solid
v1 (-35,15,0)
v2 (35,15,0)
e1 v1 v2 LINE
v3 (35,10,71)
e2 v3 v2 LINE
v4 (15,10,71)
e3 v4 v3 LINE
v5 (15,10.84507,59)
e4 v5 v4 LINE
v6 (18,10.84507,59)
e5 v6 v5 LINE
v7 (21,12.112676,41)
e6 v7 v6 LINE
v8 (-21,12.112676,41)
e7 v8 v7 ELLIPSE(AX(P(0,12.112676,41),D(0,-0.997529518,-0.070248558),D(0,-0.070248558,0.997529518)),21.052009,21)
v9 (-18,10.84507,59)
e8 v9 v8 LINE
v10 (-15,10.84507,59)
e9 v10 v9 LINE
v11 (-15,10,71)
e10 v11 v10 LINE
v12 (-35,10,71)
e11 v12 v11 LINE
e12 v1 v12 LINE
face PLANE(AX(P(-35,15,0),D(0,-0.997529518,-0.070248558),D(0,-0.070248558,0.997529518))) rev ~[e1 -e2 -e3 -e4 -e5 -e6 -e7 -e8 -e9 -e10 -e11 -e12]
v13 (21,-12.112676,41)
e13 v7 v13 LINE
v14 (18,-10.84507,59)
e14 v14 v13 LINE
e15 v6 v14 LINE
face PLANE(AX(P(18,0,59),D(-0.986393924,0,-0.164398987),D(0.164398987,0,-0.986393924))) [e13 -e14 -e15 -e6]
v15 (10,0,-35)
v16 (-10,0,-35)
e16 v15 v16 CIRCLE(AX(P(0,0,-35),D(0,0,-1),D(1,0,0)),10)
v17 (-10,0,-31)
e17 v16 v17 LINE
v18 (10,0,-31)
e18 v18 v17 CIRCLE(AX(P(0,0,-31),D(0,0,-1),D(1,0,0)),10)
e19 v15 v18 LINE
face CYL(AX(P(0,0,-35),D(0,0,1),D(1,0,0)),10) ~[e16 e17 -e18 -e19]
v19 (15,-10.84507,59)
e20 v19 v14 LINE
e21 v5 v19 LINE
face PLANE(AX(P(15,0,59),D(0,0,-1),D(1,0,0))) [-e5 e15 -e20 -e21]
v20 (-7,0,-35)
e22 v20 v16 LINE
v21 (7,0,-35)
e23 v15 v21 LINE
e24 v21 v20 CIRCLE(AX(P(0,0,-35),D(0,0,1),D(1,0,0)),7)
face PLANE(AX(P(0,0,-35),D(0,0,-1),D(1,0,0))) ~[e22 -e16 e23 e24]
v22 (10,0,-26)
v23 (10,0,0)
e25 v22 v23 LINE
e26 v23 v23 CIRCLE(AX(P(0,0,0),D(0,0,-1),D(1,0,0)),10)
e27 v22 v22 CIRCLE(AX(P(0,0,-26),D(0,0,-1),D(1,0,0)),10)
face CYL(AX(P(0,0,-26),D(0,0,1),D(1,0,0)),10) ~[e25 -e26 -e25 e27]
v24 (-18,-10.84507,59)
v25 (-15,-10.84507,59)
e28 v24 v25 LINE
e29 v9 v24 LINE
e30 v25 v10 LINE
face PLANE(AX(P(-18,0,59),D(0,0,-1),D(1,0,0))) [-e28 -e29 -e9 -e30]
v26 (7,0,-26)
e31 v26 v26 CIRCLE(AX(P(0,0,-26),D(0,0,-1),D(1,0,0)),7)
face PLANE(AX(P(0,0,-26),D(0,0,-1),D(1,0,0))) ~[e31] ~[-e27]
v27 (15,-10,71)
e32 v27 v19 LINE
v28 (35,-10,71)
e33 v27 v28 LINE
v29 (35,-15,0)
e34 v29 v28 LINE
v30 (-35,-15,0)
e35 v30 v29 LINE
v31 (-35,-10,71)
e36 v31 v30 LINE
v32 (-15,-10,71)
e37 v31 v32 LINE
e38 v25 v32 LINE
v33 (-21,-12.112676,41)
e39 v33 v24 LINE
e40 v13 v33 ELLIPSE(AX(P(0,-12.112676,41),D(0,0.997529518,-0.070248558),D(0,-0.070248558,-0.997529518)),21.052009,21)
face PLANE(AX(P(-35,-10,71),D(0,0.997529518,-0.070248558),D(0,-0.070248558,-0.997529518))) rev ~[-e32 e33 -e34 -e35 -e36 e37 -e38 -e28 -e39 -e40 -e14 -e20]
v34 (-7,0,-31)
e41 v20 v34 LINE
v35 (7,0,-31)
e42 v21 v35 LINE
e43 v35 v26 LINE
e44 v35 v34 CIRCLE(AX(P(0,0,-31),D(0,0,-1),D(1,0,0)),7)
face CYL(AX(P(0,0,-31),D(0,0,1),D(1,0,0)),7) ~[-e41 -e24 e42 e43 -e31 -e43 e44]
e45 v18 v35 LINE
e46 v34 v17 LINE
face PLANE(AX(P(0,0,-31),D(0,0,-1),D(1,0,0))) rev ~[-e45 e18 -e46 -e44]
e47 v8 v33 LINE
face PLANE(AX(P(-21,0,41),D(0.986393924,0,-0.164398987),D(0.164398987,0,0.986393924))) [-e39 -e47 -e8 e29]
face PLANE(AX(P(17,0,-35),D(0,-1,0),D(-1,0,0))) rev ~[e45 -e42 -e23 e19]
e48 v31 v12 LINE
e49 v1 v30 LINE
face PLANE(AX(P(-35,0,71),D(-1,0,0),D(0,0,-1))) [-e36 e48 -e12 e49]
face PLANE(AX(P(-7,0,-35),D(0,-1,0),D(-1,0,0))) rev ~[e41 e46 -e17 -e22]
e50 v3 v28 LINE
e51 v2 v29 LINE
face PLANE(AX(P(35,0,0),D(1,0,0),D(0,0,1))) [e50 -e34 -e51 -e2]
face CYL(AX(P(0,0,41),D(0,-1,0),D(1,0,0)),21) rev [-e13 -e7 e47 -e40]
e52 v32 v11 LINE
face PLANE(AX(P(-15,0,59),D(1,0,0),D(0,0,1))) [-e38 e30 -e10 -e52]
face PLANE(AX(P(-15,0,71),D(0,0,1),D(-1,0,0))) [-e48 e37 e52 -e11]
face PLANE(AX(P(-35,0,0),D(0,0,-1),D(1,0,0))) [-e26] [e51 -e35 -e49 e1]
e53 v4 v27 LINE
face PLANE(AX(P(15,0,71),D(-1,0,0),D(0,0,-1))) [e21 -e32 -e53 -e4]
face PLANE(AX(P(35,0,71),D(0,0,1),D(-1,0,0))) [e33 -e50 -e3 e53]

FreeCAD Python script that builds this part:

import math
import FreeCAD as App
import Part
import Sketcher
Q = App.Units.Quantity

doc = App.newDocument("Part")
params = doc.addObject("Spreadsheet::Sheet", "Params")
for row, (alias, value) in enumerate([
    ("sketch1_radius", "21 mm"),
    ("sketch1_width", "70 mm"),
    ("sketch1_width2", "20 mm"),
    ("sketch1_width3", "3 mm"),
    ("sketch1_height", "71 mm"),
    ("pad1_length", "30 mm"),
    ("sketch2_width", "5 mm"),
    ("sketch2_height", "71 mm"),
    ("sketch3_width", "10 mm"),
    ("sketch3_width2", "3 mm"),
    ("sketch3_height", "35 mm"),
    ("sketch3_height2", "4 mm"),
    ("sketch3_height3", "5 mm"),
    ("revolution_angle", "360 deg"),
    ("sketch4_radius", "7 mm"),
    ("sketch4_width", "10 mm"),
    ("pocket2_length", "6 mm"),
], start=1):
    params.set(f"A{row}", alias)
    params.set(f"B{row}", "=" + value)
    params.setAlias(f"B{row}", alias)

body = doc.addObject("PartDesign::Body", "Body")

# Sketch on XZ plane
sketch1 = body.newObject("Sketcher::SketchObject", "Sketch")
sketch1.AttachmentSupport = (doc.getObject("XZ_Plane"), [""])
sketch1.MapMode = "FlatFace"
sketch1.addGeometry(Part.LineSegment(App.Vector(-35, 71, 0), App.Vector(-35, 0, 0)), False)
sketch1.addGeometry(Part.LineSegment(App.Vector(-35, 0, 0), App.Vector(35, 0, 0)), False)
sketch1.addGeometry(Part.LineSegment(App.Vector(35, 0, 0), App.Vector(35, 71, 0)), False)
sketch1.addGeometry(Part.LineSegment(App.Vector(35, 71, 0), App.Vector(15, 71, 0)), False)
sketch1.addGeometry(Part.LineSegment(App.Vector(15, 71, 0), App.Vector(15, 59, 0)), False)
sketch1.addGeometry(Part.LineSegment(App.Vector(15, 59, 0), App.Vector(18, 59, 0)), False)
sketch1.addGeometry(Part.LineSegment(App.Vector(18, 59, 0), App.Vector(21, 41, 0)), False)
sketch1.addGeometry(Part.ArcOfCircle(Part.Circle(App.Vector(0, 41, 0), App.Vector(0, 0, 1), 21), math.radians(180), math.radians(360)), False)
sketch1.addGeometry(Part.LineSegment(App.Vector(-21, 41, 0), App.Vector(-18, 59, 0)), False)
sketch1.addGeometry(Part.LineSegment(App.Vector(-18, 59, 0), App.Vector(-15, 59, 0)), False)
sketch1.addGeometry(Part.LineSegment(App.Vector(-15, 59, 0), App.Vector(-15, 71, 0)), False)
sketch1.addGeometry(Part.LineSegment(App.Vector(-15, 71, 0), App.Vector(-35, 71, 0)), False)
sketch1.addConstraint(Sketcher.Constraint("Coincident", 0, 2, 1, 1))
sketch1.addConstraint(Sketcher.Constraint("Coincident", 1, 2, 2, 1))
sketch1.addConstraint(Sketcher.Constraint("Coincident", 2, 2, 3, 1))
sketch1.addConstraint(Sketcher.Constraint("Coincident", 3, 2, 4, 1))
sketch1.addConstraint(Sketcher.Constraint("Coincident", 4, 2, 5, 1))
sketch1.addConstraint(Sketcher.Constraint("Coincident", 5, 2, 6, 1))
sketch1.addConstraint(Sketcher.Constraint("Coincident", 6, 2, 7, 2))
sketch1.addConstraint(Sketcher.Constraint("Coincident", 7, 1, 8, 1))
sketch1.addConstraint(Sketcher.Constraint("Coincident", 8, 2, 9, 1))
sketch1.addConstraint(Sketcher.Constraint("Coincident", 9, 2, 10, 1))
sketch1.addConstraint(Sketcher.Constraint("Coincident", 10, 2, 11, 1))
sketch1.addConstraint(Sketcher.Constraint("Coincident", 11, 2, 0, 1))
sketch1.addConstraint(Sketcher.Constraint("Vertical", 0))
sketch1.addConstraint(Sketcher.Constraint("Horizontal", 1))
sketch1.addConstraint(Sketcher.Constraint("Vertical", 2))
sketch1.addConstraint(Sketcher.Constraint("Horizontal", 3))
sketch1.addConstraint(Sketcher.Constraint("Vertical", 4))
sketch1.addConstraint(Sketcher.Constraint("Horizontal", 5))
sketch1.addConstraint(Sketcher.Constraint("Horizontal", 9))
sketch1.addConstraint(Sketcher.Constraint("Vertical", 10))
sketch1.addConstraint(Sketcher.Constraint("Horizontal", 11))
sketch1.addConstraint(Sketcher.Constraint("Symmetric", 0, 2, 1, 2, -1, 1))
sketch1.addConstraint(Sketcher.Constraint("Symmetric", 6, 2, 7, 1, -2))
sketch1.addConstraint(Sketcher.Constraint("Symmetric", 5, 2, 8, 2, -2))
sketch1.addConstraint(Sketcher.Constraint("Symmetric", 3, 2, 10, 2, -2))
sketch1.addConstraint(Sketcher.Constraint("Horizontal", 7, 3, 6, 2))
sketch1.addConstraint(Sketcher.Constraint("Radius", 7, Q("21 mm")))
sketch1.addConstraint(Sketcher.Constraint("DistanceX", 1, 1, 1, 2, Q("70 mm")))
sketch1.addConstraint(Sketcher.Constraint("DistanceX", 3, 2, 3, 1, Q("20 mm")))
sketch1.addConstraint(Sketcher.Constraint("DistanceX", 5, 1, 5, 2, Q("3 mm")))
sketch1.addConstraint(Sketcher.Constraint("DistanceY", 0, 2, 0, 1, Q("71 mm")))
sketch1.addConstraint(Sketcher.Constraint("DistanceY", 4, 2, 4, 1, Q("12 mm")))
sketch1.addConstraint(Sketcher.Constraint("DistanceY", -1, 1, 7, 3, Q("41 mm")))
sketch1.setExpression("Constraints[26]", "Params.sketch1_radius")
sketch1.setExpression("Constraints[27]", "Params.sketch1_width")
sketch1.setExpression("Constraints[28]", "Params.sketch1_width2")
sketch1.setExpression("Constraints[29]", "Params.sketch1_width3")
sketch1.setExpression("Constraints[30]", "Params.sketch1_height")
pad1 = body.newObject("PartDesign::Pad", "Pad")
pad1.Profile = sketch1
pad1.setExpression("Length", "Params.pad1_length")
pad1.Midplane = True

# Sketch on YZ plane
sketch2 = body.newObject("Sketcher::SketchObject", "Sketch001")
sketch2.AttachmentSupport = (doc.getObject("YZ_Plane"), [""])
sketch2.MapMode = "FlatFace"
sketch2.AttachmentOffset = App.Placement(App.Vector(0, 0, -35), App.Rotation())
sketch2.addGeometry(Part.LineSegment(App.Vector(10, 71, 0), App.Vector(15, 71, 0)), False)
sketch2.addGeometry(Part.LineSegment(App.Vector(15, 71, 0), App.Vector(15, 0, 0)), False)
sketch2.addGeometry(Part.LineSegment(App.Vector(15, 0, 0), App.Vector(10, 71, 0)), False)
sketch2.addGeometry(Part.LineSegment(App.Vector(-10, 71, 0), App.Vector(-15, 0, 0)), False)
sketch2.addGeometry(Part.LineSegment(App.Vector(-15, 0, 0), App.Vector(-15, 71, 0)), False)
sketch2.addGeometry(Part.LineSegment(App.Vector(-15, 71, 0), App.Vector(-10, 71, 0)), False)
sketch2.addConstraint(Sketcher.Constraint("Coincident", 0, 2, 1, 1))
sketch2.addConstraint(Sketcher.Constraint("Coincident", 1, 2, 2, 1))
sketch2.addConstraint(Sketcher.Constraint("Coincident", 2, 2, 0, 1))
sketch2.addConstraint(Sketcher.Constraint("Coincident", 3, 2, 4, 1))
sketch2.addConstraint(Sketcher.Constraint("Coincident", 4, 2, 5, 1))
sketch2.addConstraint(Sketcher.Constraint("Coincident", 5, 2, 3, 1))
sketch2.addConstraint(Sketcher.Constraint("Horizontal", 0))
sketch2.addConstraint(Sketcher.Constraint("Vertical", 1))
sketch2.addConstraint(Sketcher.Constraint("Vertical", 4))
sketch2.addConstraint(Sketcher.Constraint("Horizontal", 5))
sketch2.addConstraint(Sketcher.Constraint("Symmetric", 1, 2, 3, 2, -1, 1))
sketch2.addConstraint(Sketcher.Constraint("Symmetric", 2, 2, 5, 2, -2))
sketch2.addConstraint(Sketcher.Constraint("PointOnObject", 1, 2, -1))
sketch2.addConstraint(Sketcher.Constraint("DistanceX", 0, 1, 0, 2, Q("5 mm")))
sketch2.addConstraint(Sketcher.Constraint("DistanceY", 1, 2, 1, 1, Q("71 mm")))
sketch2.addConstraint(Sketcher.Constraint("DistanceX", -1, 1, 0, 2, Q("15 mm")))
sketch2.setExpression("Constraints[13]", "Params.sketch2_width")
sketch2.setExpression("Constraints[14]", "Params.sketch2_height")
pocket1 = body.newObject("PartDesign::Pocket", "Pocket")
pocket1.Profile = sketch2
pocket1.Type = "ThroughAll"
pocket1.Reversed = True

# Sketch on XZ plane
sketch3 = body.newObject("Sketcher::SketchObject", "Sketch002")
sketch3.AttachmentSupport = (doc.getObject("XZ_Plane"), [""])
sketch3.MapMode = "FlatFace"
sketch3.addGeometry(Part.LineSegment(App.Vector(10, 0, 0), App.Vector(0, 0, 0)), False)
sketch3.addGeometry(Part.LineSegment(App.Vector(0, 0, 0), App.Vector(0, -35, 0)), False)
sketch3.addGeometry(Part.LineSegment(App.Vector(0, -35, 0), App.Vector(10, -35, 0)), False)
sketch3.addGeometry(Part.LineSegment(App.Vector(10, -35, 0), App.Vector(10, -31, 0)), False)
sketch3.addGeometry(Part.LineSegment(App.Vector(10, -31, 0), App.Vector(7, -31, 0)), False)
sketch3.addGeometry(Part.LineSegment(App.Vector(7, -31, 0), App.Vector(7, -26, 0)), False)
sketch3.addGeometry(Part.LineSegment(App.Vector(7, -26, 0), App.Vector(10, -26, 0)), False)
sketch3.addGeometry(Part.LineSegment(App.Vector(10, -26, 0), App.Vector(10, 0, 0)), False)
sketch3.addConstraint(Sketcher.Constraint("Coincident", 0, 2, 1, 1))
sketch3.addConstraint(Sketcher.Constraint("Coincident", 1, 2, 2, 1))
sketch3.addConstraint(Sketcher.Constraint("Coincident", 2, 2, 3, 1))
sketch3.addConstraint(Sketcher.Constraint("Coincident", 3, 2, 4, 1))
sketch3.addConstraint(Sketcher.Constraint("Coincident", 4, 2, 5, 1))
sketch3.addConstraint(Sketcher.Constraint("Coincident", 5, 2, 6, 1))
sketch3.addConstraint(Sketcher.Constraint("Coincident", 6, 2, 7, 1))
sketch3.addConstraint(Sketcher.Constraint("Coincident", 7, 2, 0, 1))
sketch3.addConstraint(Sketcher.Constraint("Horizontal", 0))
sketch3.addConstraint(Sketcher.Constraint("Vertical", 1))
sketch3.addConstraint(Sketcher.Constraint("Horizontal", 2))
sketch3.addConstraint(Sketcher.Constraint("Vertical", 3))
sketch3.addConstraint(Sketcher.Constraint("Horizontal", 4))
sketch3.addConstraint(Sketcher.Constraint("Vertical", 5))
sketch3.addConstraint(Sketcher.Constraint("Horizontal", 6))
sketch3.addConstraint(Sketcher.Constraint("Vertical", 7))
sketch3.addConstraint(Sketcher.Constraint("Coincident", 0, 2, -1, 1))
sketch3.addConstraint(Sketcher.Constraint("Vertical", 3, 2, 6, 2))
sketch3.addConstraint(Sketcher.Constraint("DistanceX", 0, 2, 0, 1, Q("10 mm")))
sketch3.addConstraint(Sketcher.Constraint("DistanceX", 4, 2, 4, 1, Q("3 mm")))
sketch3.addConstraint(Sketcher.Constraint("DistanceY", 1, 2, 1, 1, Q("35 mm")))
sketch3.addConstraint(Sketcher.Constraint("DistanceY", 3, 1, 3, 2, Q("4 mm")))
sketch3.addConstraint(Sketcher.Constraint("DistanceY", 5, 1, 5, 2, Q("5 mm")))
sketch3.setExpression("Constraints[18]", "Params.sketch3_width")
sketch3.setExpression("Constraints[19]", "Params.sketch3_width2")
sketch3.setExpression("Constraints[20]", "Params.sketch3_height")
sketch3.setExpression("Constraints[21]", "Params.sketch3_height2")
sketch3.setExpression("Constraints[22]", "Params.sketch3_height3")
revolution = body.newObject("PartDesign::Revolution", "Revolution")
revolution.Profile = sketch3
revolution.ReferenceAxis = (sketch3, ["V_Axis"])
revolution.setExpression("Angle", "Params.revolution_angle")

# Sketch on XY plane
sketch4 = body.newObject("Sketcher::SketchObject", "Sketch003")
sketch4.AttachmentSupport = (doc.getObject("XY_Plane"), [""])
sketch4.MapMode = "FlatFace"
sketch4.AttachmentOffset = App.Placement(App.Vector(0, 0, -35), App.Rotation())
sketch4.addGeometry(Part.LineSegment(App.Vector(17, 0, 0), App.Vector(7, 0, 0)), False)
sketch4.addGeometry(Part.ArcOfCircle(Part.Circle(App.Vector(0, 0, 0), App.Vector(0, 0, 1), 7), math.radians(0), math.radians(180)), False)
sketch4.addGeometry(Part.LineSegment(App.Vector(-7, 0, 0), App.Vector(-17, 0, 0)), False)
sketch4.addGeometry(Part.LineSegment(App.Vector(-17, 0, 0), App.Vector(-17, 25.996203, 0)), False)
sketch4.addGeometry(Part.LineSegment(App.Vector(-17, 25.996203, 0), App.Vector(17, 25.996203, 0)), False)
sketch4.addGeometry(Part.LineSegment(App.Vector(17, 25.996203, 0), App.Vector(17, 0, 0)), False)
sketch4.addConstraint(Sketcher.Constraint("Coincident", 0, 2, 1, 1))
sketch4.addConstraint(Sketcher.Constraint("Coincident", 1, 2, 2, 1))
sketch4.addConstraint(Sketcher.Constraint("Coincident", 2, 2, 3, 1))
sketch4.addConstraint(Sketcher.Constraint("Coincident", 3, 2, 4, 1))
sketch4.addConstraint(Sketcher.Constraint("Coincident", 4, 2, 5, 1))
sketch4.addConstraint(Sketcher.Constraint("Coincident", 5, 2, 0, 1))
sketch4.addConstraint(Sketcher.Constraint("Horizontal", 0))
sketch4.addConstraint(Sketcher.Constraint("Horizontal", 2))
sketch4.addConstraint(Sketcher.Constraint("Vertical", 3))
sketch4.addConstraint(Sketcher.Constraint("Horizontal", 4))
sketch4.addConstraint(Sketcher.Constraint("Vertical", 5))
sketch4.addConstraint(Sketcher.Constraint("Coincident", 1, 3, -1, 1))
sketch4.addConstraint(Sketcher.Constraint("Symmetric", 2, 2, 5, 2, -1, 1))
sketch4.addConstraint(Sketcher.Constraint("PointOnObject", 0, 2, -1))
sketch4.addConstraint(Sketcher.Constraint("Radius", 1, Q("7 mm")))
sketch4.addConstraint(Sketcher.Constraint("DistanceX", 0, 2, 0, 1, Q("10 mm")))
sketch4.addConstraint(Sketcher.Constraint("DistanceY", 3, 1, 3, 2, Q("25.996203 mm")))
sketch4.setExpression("Constraints[14]", "Params.sketch4_radius")
sketch4.setExpression("Constraints[15]", "Params.sketch4_width")
pocket2 = body.newObject("PartDesign::Pocket", "Pocket001")
pocket2.Profile = sketch4
pocket2.setExpression("Length", "Params.pocket2_length")
pocket2.Reversed = True

doc.recompute()
